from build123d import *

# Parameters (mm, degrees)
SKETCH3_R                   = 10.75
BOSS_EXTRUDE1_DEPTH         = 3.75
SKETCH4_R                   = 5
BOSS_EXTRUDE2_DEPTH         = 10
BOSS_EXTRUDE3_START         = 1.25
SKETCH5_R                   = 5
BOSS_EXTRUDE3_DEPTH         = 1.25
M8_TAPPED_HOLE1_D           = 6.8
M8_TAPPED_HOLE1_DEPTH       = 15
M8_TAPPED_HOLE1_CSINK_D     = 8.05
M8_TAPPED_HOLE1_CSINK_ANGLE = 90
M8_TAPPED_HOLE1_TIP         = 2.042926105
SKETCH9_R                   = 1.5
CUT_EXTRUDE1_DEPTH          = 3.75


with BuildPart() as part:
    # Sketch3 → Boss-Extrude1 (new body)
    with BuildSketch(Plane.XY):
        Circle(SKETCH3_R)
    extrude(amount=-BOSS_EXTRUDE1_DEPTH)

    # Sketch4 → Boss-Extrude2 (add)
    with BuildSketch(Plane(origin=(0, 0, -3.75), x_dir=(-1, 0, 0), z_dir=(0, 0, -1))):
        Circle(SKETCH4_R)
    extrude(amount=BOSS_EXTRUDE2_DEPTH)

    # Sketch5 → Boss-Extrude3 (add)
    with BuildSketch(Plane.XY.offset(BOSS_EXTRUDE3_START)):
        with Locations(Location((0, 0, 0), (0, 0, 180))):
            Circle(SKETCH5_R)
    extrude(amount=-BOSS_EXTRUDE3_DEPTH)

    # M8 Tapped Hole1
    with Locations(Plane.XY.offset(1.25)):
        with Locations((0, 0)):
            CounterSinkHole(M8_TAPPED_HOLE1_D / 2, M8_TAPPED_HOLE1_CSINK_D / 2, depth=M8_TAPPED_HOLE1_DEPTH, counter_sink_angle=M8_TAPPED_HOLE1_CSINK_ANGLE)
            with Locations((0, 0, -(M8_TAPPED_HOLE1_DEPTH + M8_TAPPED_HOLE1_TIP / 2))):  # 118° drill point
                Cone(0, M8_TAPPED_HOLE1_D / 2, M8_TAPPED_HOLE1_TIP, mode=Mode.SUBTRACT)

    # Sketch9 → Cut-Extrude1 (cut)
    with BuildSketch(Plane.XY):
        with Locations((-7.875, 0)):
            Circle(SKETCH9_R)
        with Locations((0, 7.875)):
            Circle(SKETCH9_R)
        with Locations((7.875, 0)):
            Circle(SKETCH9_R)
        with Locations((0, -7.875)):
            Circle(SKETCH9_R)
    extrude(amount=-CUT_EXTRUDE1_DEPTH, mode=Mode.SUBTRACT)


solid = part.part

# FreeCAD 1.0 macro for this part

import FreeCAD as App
import Part
import Sketcher
Q = App.Units.Quantity

doc = App.newDocument("Part")
body = doc.addObject("PartDesign::Body", "Body")

# Sketch on XY plane
sketch1 = doc.addObject("Sketcher::SketchObject", "Sketch")
body.addObject(sketch1)
sketch1.AttachmentSupport = (doc.XY_Plane, [""])
sketch1.MapMode = "FlatFace"
sketch1.addGeometry(Part.Circle(App.Vector(0, 0, 0), App.Vector(0, 0, 1), 10.75), False)
sketch1.addConstraint([
    Sketcher.Constraint("Coincident", 0, 3, -1, 1),
    Sketcher.Constraint("Diameter", 0, Q("21.5 mm")),
])
pad1 = doc.addObject("PartDesign::Pad", "Pad")
body.addObject(pad1)
pad1.Profile = sketch1
pad1.Length = 3.75
pad1.Reversed = True

# Sketch on XY plane
sketch2 = doc.addObject("Sketcher::SketchObject", "Sketch001")
body.addObject(sketch2)
sketch2.AttachmentSupport = (doc.XY_Plane, [""])
sketch2.MapMode = "FlatFace"
sketch2.AttachmentOffset = App.Placement(App.Vector(0, 0, -3.75), App.Rotation())
sketch2.addGeometry(Part.Circle(App.Vector(0, 0, 0), App.Vector(0, 0, 1), 5), False)
sketch2.addConstraint([
    Sketcher.Constraint("Coincident", 0, 3, -1, 1),
    Sketcher.Constraint("Diameter", 0, Q("10 mm")),
])
pad2 = doc.addObject("PartDesign::Pad", "Pad001")
body.addObject(pad2)
pad2.Profile = sketch2
pad2.Length = 10
pad2.Reversed = True

# Sketch on XY plane
sketch3 = doc.addObject("Sketcher::SketchObject", "Sketch002")
body.addObject(sketch3)
sketch3.AttachmentSupport = (doc.XY_Plane, [""])
sketch3.MapMode = "FlatFace"
sketch3.AttachmentOffset = App.Placement(App.Vector(0, 0, 1.25), App.Rotation())
sketch3.addGeometry(Part.Circle(App.Vector(0, 0, 0), App.Vector(0, 0, 1), 5), False)
sketch3.addConstraint([
    Sketcher.Constraint("Coincident", 0, 3, -1, 1),
    Sketcher.Constraint("Diameter", 0, Q("10 mm")),
])
pad3 = doc.addObject("PartDesign::Pad", "Pad002")
body.addObject(pad3)
pad3.Profile = sketch3
pad3.Length = 1.25
pad3.Reversed = True

# Sketch on XY plane
sketch4 = doc.addObject("Sketcher::SketchObject", "Sketch003")
body.addObject(sketch4)
sketch4.AttachmentSupport = (doc.XY_Plane, [""])
sketch4.MapMode = "FlatFace"
sketch4.AttachmentOffset = App.Placement(App.Vector(0, 0, 1.25), App.Rotation())
sketch4.addGeometry(Part.Circle(App.Vector(0, 0, 0), App.Vector(0, 0, 1), 3.4), False)
sketch4.addConstraint([
    Sketcher.Constraint("Coincident", 0, 3, -1, 1),
    Sketcher.Constraint("Diameter", 0, Q("6.8 mm")),
])
doc.recompute()
hole = doc.addObject("PartDesign::Hole", "Hole")
body.addObject(hole)
hole.Profile = sketch4
hole.ThreadType = "None"
hole.Diameter = 6.8
hole.DepthType = "Dimension"
hole.Depth = 15
hole.DrillPoint = "Angled"
hole.DrillPointAngle = 118
hole.HoleCutType = "Countersink"
hole.HoleCutDiameter = 8.05
hole.HoleCutCountersinkAngle = 90

# Sketch on XY plane
sketch5 = doc.addObject("Sketcher::SketchObject", "Sketch004")
body.addObject(sketch5)
sketch5.AttachmentSupport = (doc.XY_Plane, [""])
sketch5.MapMode = "FlatFace"
sketch5.addGeometry([
    Part.Circle(App.Vector(-7.875, 0, 0), App.Vector(0, 0, 1), 1.5),
    Part.Circle(App.Vector(0, 7.875, 0), App.Vector(0, 0, 1), 1.5),
    Part.Circle(App.Vector(7.875, 0, 0), App.Vector(0, 0, 1), 1.5),
    Part.Circle(App.Vector(0, -7.875, 0), App.Vector(0, 0, 1), 1.5),
], False)
sketch5.addConstraint([
    Sketcher.Constraint("Equal", 0, 1),
    Sketcher.Constraint("Equal", 1, 2),
    Sketcher.Constraint("Equal", 2, 3),
    Sketcher.Constraint("Symmetric", 0, 3, 2, 3, -1, 1),
    Sketcher.Constraint("Symmetric", 1, 3, 3, 3, -1, 1),
    Sketcher.Constraint("PointOnObject", 0, 3, -1),
    Sketcher.Constraint("PointOnObject", 1, 3, -2),
    Sketcher.Constraint("Diameter", 0, Q("3 mm")),
    Sketcher.Constraint("DistanceX", 0, 3, 2, 3, Q("15.75 mm")),
    Sketcher.Constraint("DistanceY", 3, 3, 1, 3, Q("15.75 mm")),
])
pocket1 = doc.addObject("PartDesign::Pocket", "Pocket")
body.addObject(pocket1)
pocket1.Profile = sketch5
pocket1.Length = 3.75

doc.recompute()
